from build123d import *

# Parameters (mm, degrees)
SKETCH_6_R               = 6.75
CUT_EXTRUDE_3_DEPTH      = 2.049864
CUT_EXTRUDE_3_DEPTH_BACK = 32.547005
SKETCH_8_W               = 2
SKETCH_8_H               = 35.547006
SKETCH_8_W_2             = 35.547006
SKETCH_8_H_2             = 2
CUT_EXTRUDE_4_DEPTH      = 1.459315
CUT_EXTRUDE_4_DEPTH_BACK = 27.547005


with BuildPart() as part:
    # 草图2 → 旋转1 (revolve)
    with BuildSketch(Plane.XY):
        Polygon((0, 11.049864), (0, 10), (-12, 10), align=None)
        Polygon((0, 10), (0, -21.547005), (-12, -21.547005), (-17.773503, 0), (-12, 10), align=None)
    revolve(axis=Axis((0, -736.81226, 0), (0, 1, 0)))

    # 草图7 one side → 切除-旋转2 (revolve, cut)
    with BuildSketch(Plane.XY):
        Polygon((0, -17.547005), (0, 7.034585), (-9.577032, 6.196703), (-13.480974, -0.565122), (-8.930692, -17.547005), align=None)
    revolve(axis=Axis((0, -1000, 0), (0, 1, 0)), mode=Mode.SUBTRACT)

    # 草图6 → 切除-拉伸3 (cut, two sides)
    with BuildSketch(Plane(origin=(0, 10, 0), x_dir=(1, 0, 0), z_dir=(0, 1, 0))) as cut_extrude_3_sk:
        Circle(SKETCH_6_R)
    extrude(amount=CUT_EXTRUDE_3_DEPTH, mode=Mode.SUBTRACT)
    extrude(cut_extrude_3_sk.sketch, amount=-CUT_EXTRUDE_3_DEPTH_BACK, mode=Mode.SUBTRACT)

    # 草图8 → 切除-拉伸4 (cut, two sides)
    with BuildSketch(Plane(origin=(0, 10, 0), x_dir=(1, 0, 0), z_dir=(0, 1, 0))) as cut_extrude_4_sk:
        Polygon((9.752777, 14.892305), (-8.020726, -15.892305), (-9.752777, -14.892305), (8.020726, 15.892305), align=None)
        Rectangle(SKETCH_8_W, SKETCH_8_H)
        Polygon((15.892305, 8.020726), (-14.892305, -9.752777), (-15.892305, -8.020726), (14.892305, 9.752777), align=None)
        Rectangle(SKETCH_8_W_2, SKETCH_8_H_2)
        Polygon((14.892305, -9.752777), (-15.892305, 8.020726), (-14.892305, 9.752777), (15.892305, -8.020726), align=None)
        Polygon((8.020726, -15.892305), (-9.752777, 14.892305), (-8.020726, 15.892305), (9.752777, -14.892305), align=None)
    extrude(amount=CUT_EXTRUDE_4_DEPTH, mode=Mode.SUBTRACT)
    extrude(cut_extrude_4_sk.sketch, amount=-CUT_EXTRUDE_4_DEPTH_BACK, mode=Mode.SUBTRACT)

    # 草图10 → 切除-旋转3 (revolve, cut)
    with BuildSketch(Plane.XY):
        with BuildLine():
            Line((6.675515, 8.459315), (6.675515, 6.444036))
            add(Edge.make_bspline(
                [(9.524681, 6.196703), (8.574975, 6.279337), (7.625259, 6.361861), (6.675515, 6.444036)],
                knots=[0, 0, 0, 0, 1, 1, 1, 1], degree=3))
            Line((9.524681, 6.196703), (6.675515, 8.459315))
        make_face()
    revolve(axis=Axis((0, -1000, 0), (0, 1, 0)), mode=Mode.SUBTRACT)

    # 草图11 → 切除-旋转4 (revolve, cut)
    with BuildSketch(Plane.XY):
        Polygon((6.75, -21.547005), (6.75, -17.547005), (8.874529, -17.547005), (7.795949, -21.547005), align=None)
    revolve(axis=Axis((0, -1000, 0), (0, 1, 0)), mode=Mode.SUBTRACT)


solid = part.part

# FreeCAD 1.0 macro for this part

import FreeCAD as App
import Part
import Sketcher
Q = App.Units.Quantity


def add_polygon(sketch, points):
    """Adds a closed chain of lines whose ends are joined by coincident constraints."""
    first, n = sketch.GeometryCount, len(points)
    for a, b in zip(points, points[1:] + points[:1]):
        sketch.addGeometry(Part.LineSegment(App.Vector(*a, 0), App.Vector(*b, 0)), False)
    for i in range(n):
        sketch.addConstraint(Sketcher.Constraint("Coincident", first + i, 2, first + (i + 1) % n, 1))

doc = App.newDocument("Part")
params = doc.addObject("Spreadsheet::Sheet", "Params")
for row, (alias, value) in enumerate([
    ("sketch1_width", "12 mm"),
    ("revolution_angle", "360 deg"),
    ("groove_angle", "360 deg"),
    ("sketch3_diameter", "13.5 mm"),
    ("sketch4_width", "2 mm"),
    ("sketch4_length", "2 mm"),
    ("pocket2_length", "1.459315 mm"),
    ("pocket2_length2", "27.547005 mm"),
    ("groove2_angle", "360 deg"),
    ("sketch6_height", "4 mm"),
    ("groove3_angle", "360 deg"),
], start=1):
    params.set(f"A{row}", alias)
    params.set(f"B{row}", "=" + value)
    params.setAlias(f"B{row}", alias)

body = doc.addObject("PartDesign::Body", "Body")

# Sketch on XY plane
sketch1 = body.newObject("Sketcher::SketchObject", "Sketch")
sketch1.AttachmentSupport = (doc.getObject("XY_Plane"), [""])
sketch1.MapMode = "FlatFace"
add_polygon(sketch1, [(0, -22), (0, 11), (-12, 10), (-18, 0), (-12, -22)])  # lines 0-4
sketch1.addConstraint(Sketcher.Constraint("Vertical", 0))
sketch1.addConstraint(Sketcher.Constraint("Horizontal", 4))
sketch1.addConstraint(Sketcher.Constraint("PointOnObject", 0, 2, -2))
sketch1.addConstraint(Sketcher.Constraint("PointOnObject", 2, 2, -1))
sketch1.addConstraint(Sketcher.Constraint("Vertical", 1, 2, 3, 2))
sketch1.addConstraint(Sketcher.Constraint("DistanceX", 4, 1, 4, 2, Q("12 mm")))
sketch1.addConstraint(Sketcher.Constraint("Angle", 1, Q("-175 deg")))
sketch1.addConstraint(Sketcher.Constraint("Angle", 2, Q("-120.000001 deg")))
sketch1.addConstraint(Sketcher.Constraint("Angle", 3, Q("-74.999999 deg")))
sketch1.addConstraint(Sketcher.Constraint("DistanceY", -1, 1, 1, 2, Q("10 mm")))
sketch1.setExpression("Constraints[10]", "Params.sketch1_width")
revolution = body.newObject("PartDesign::Revolution", "Revolution")
revolution.Profile = sketch1
revolution.ReferenceAxis = (sketch1, ["V_Axis"])
revolution.setExpression("Angle", "Params.revolution_angle")

# Sketch on XY plane
sketch2 = body.newObject("Sketcher::SketchObject", "Sketch001")
sketch2.AttachmentSupport = (doc.getObject("XY_Plane"), [""])
sketch2.MapMode = "FlatFace"
add_polygon(sketch2, [(0, -18), (0, 7), (-10, 6), (-13, -1), (-9, -18)])  # lines 0-4
sketch2.addConstraint(Sketcher.Constraint("Vertical", 0))
sketch2.addConstraint(Sketcher.Constraint("Horizontal", 4))
sketch2.addConstraint(Sketcher.Constraint("PointOnObject", 0, 2, -2))
sketch2.addConstraint(Sketcher.Constraint("Angle", 1, Q("-174.999998 deg")))
sketch2.addConstraint(Sketcher.Constraint("Angle", 2, Q("-120.000003 deg")))
sketch2.addConstraint(Sketcher.Constraint("Angle", 3, Q("-74.999999 deg")))
sketch2.addConstraint(Sketcher.Constraint("DistanceY", 0, 1, 0, 2, Q("24.58159 mm")))
sketch2.addConstraint(Sketcher.Constraint("Distance", 3, Q("17.580939 mm")))
sketch2.addConstraint(Sketcher.Constraint("DistanceX", 4, 1, 4, 2, Q("8.930692 mm")))
sketch2.addConstraint(Sketcher.Constraint("DistanceY", -1, 1, 0, 2, Q("7.034585 mm")))
groove = body.newObject("PartDesign::Groove", "Groove")
groove.Profile = sketch2
groove.ReferenceAxis = (sketch2, ["V_Axis"])
groove.setExpression("Angle", "Params.groove_angle")

# Sketch on XZ plane
sketch3 = body.newObject("Sketcher::SketchObject", "Sketch002")
sketch3.AttachmentSupport = (doc.getObject("XZ_Plane"), [""])
sketch3.MapMode = "FlatFace"
sketch3.AttachmentOffset = App.Placement(App.Vector(0, 0, -10), App.Rotation())
sketch3.addGeometry(Part.Circle(App.Vector(0, 0, 0), App.Vector(0, 0, 1), 7), False)
sketch3.addConstraint(Sketcher.Constraint("Coincident", 0, 3, -1, 1))
sketch3.addConstraint(Sketcher.Constraint("Diameter", 0, Q("13.5 mm")))
sketch3.setExpression("Constraints[1]", "Params.sketch3_diameter")
pocket1 = body.newObject("PartDesign::Pocket", "Pocket")
pocket1.Profile = sketch3
pocket1.Type = "ThroughAll"
pocket1.Midplane = True

# Sketch on XZ plane
sketch4 = body.newObject("Sketcher::SketchObject", "Sketch003")
sketch4.AttachmentSupport = (doc.getObject("XZ_Plane"), [""])
sketch4.MapMode = "FlatFace"
sketch4.AttachmentOffset = App.Placement(App.Vector(0, 0, -10), App.Rotation())
add_polygon(sketch4, [(1, -3.7), (1, -17.8), (-1, -17.8), (-1, -3.7), (-8, -15.9), (-9.8, -14.9), (-2.7, -2.7), (-14.9, -9.8), (-15.9, -8), (-3.7, -1), (-17.8, -1), (-17.8, 1), (-3.7, 1), (-15.9, 8), (-14.9, 9.8), (-2.7, 2.7), (-9.8, 14.9), (-8, 15.9), (-1, 3.7), (-1, 17.8), (1, 17.8), (1, 3.7), (8, 15.9), (9.8, 14.9), (2.7, 2.7), (14.9, 9.8), (15.9, 8), (3.7, 1), (17.8, 1), (17.8, -1), (3.7, -1), (15.9, -8), (14.9, -9.8), (2.7, -2.7), (9.8, -14.9), (8, -15.9)])  # lines 0-35
sketch4.addConstraint(Sketcher.Constraint("Vertical", 0))
sketch4.addConstraint(Sketcher.Constraint("Horizontal", 1))
sketch4.addConstraint(Sketcher.Constraint("Vertical", 2))
sketch4.addConstraint(Sketcher.Constraint("Horizontal", 9))
sketch4.addConstraint(Sketcher.Constraint("Vertical", 10))
sketch4.addConstraint(Sketcher.Constraint("Horizontal", 11))
sketch4.addConstraint(Sketcher.Constraint("Vertical", 18))
sketch4.addConstraint(Sketcher.Constraint("Horizontal", 19))
sketch4.addConstraint(Sketcher.Constraint("Vertical", 20))
sketch4.addConstraint(Sketcher.Constraint("Horizontal", 27))
sketch4.addConstraint(Sketcher.Constraint("Vertical", 28))
sketch4.addConstraint(Sketcher.Constraint("Horizontal", 29))
sketch4.addConstraint(Sketcher.Constraint("Symmetric", 0, 2, 18, 2, -1, 1))
sketch4.addConstraint(Sketcher.Constraint("Symmetric", 2, 2, 20, 2, -1, 1))
sketch4.addConstraint(Sketcher.Constraint("Symmetric", 3, 2, 21, 2, -1, 1))
sketch4.addConstraint(Sketcher.Constraint("Symmetric", 4, 2, 22, 2, -1, 1))
sketch4.addConstraint(Sketcher.Constraint("Symmetric", 5, 2, 23, 2, -1, 1))
sketch4.addConstraint(Sketcher.Constraint("Symmetric", 6, 2, 24, 2, -1, 1))
sketch4.addConstraint(Sketcher.Constraint("Symmetric", 7, 2, 25, 2, -1, 1))
sketch4.addConstraint(Sketcher.Constraint("Symmetric", 8, 2, 26, 2, -1, 1))
sketch4.addConstraint(Sketcher.Constraint("Symmetric", 10, 2, 28, 2, -1, 1))
sketch4.addConstraint(Sketcher.Constraint("Symmetric", 12, 2, 30, 2, -1, 1))
sketch4.addConstraint(Sketcher.Constraint("Symmetric", 13, 2, 31, 2, -1, 1))
sketch4.addConstraint(Sketcher.Constraint("Symmetric", 14, 2, 32, 2, -1, 1))
sketch4.addConstraint(Sketcher.Constraint("Symmetric", 15, 2, 33, 2, -1, 1))
sketch4.addConstraint(Sketcher.Constraint("Symmetric", 16, 2, 34, 2, -1, 1))
sketch4.addConstraint(Sketcher.Constraint("Symmetric", 17, 2, 20, 2, -2))
sketch4.addConstraint(Sketcher.Constraint("Symmetric", 16, 2, 21, 2, -2))
sketch4.addConstraint(Sketcher.Constraint("Symmetric", 15, 2, 22, 2, -2))
sketch4.addConstraint(Sketcher.Constraint("Symmetric", 14, 2, 23, 2, -2))
sketch4.addConstraint(Sketcher.Constraint("Symmetric", 13, 2, 24, 2, -2))
sketch4.addConstraint(Sketcher.Constraint("Symmetric", 12, 2, 25, 2, -2))
sketch4.addConstraint(Sketcher.Constraint("Symmetric", 11, 2, 26, 2, -2))
sketch4.addConstraint(Sketcher.Constraint("Perpendicular", 3, 4))
sketch4.addConstraint(Sketcher.Constraint("Perpendicular", 4, 5))
sketch4.addConstraint(Sketcher.Constraint("Perpendicular", 6, 7))
sketch4.addConstraint(Sketcher.Constraint("Perpendicular", 7, 8))
sketch4.addConstraint(Sketcher.Constraint("Perpendicular", 5, 12))
sketch4.addConstraint(Sketcher.Constraint("Perpendicular", 23, 30))
sketch4.addConstraint(Sketcher.Constraint("Perpendicular", 34, 35))
sketch4.addConstraint(Sketcher.Constraint("Equal", 29, 0))
sketch4.addConstraint(Sketcher.Constraint("Equal", 19, 10))
sketch4.addConstraint(Sketcher.Constraint("Equal", 3, 5))
sketch4.addConstraint(Sketcher.Constraint("Equal", 5, 6))
sketch4.addConstraint(Sketcher.Constraint("Equal", 4, 7))
sketch4.addConstraint(Sketcher.Constraint("Equal", 6, 8))
sketch4.addConstraint(Sketcher.Constraint("DistanceX", 1, 2, 1, 1, Q("2 mm")))
sketch4.addConstraint(Sketcher.Constraint("Angle", 3, Q("-120 deg")))
sketch4.addConstraint(Sketcher.Constraint("Distance", 4, Q("2 mm")))
sketch4.addConstraint(Sketcher.Constraint("DistanceY", 1, 2, 3, 2, Q("1.881198 mm")))
sketch4.addConstraint(Sketcher.Constraint("Distance", 3, Q("14.041452 mm")))
sketch4.setExpression("Constraints[82]", "Params.sketch4_width")
sketch4.setExpression("Constraints[84]", "Params.sketch4_length")
pocket2 = body.newObject("PartDesign::Pocket", "Pocket001")
pocket2.Profile = sketch4
pocket2.Type = "TwoLengths"
pocket2.setExpression("Length", "Params.pocket2_length")
pocket2.setExpression("Length2", "Params.pocket2_length2")

# Sketch on XY plane
sketch5 = body.newObject("Sketcher::SketchObject", "Sketch004")
sketch5.AttachmentSupport = (doc.getObject("XY_Plane"), [""])
sketch5.MapMode = "FlatFace"
sketch5.addGeometry(Part.LineSegment(App.Vector(6.675515, 8.459315, 0), App.Vector(6.675515, 6.444036, 0)), False)
sketch5.addGeometry(Part.BSplineCurve([App.Vector(9.524681, 6.196703, 0), App.Vector(8.574975, 6.279337, 0), App.Vector(7.625259, 6.361861, 0), App.Vector(6.675515, 6.444036, 0)], [4, 4], [0, 1], False, 3, [1, 1, 1, 1], False), False)
sketch5.addGeometry(Part.LineSegment(App.Vector(9.524681, 6.196703, 0), App.Vector(6.675515, 8.459315, 0)), False)
sketch5.addConstraint(Sketcher.Constraint("Block", 1))
sketch5.addConstraint(Sketcher.Constraint("Coincident", 0, 2, 1, 2))
sketch5.addConstraint(Sketcher.Constraint("Coincident", 1, 1, 2, 1))
sketch5.addConstraint(Sketcher.Constraint("Coincident", 2, 2, 0, 1))
sketch5.addConstraint(Sketcher.Constraint("Vertical", 0))
sketch5.addConstraint(Sketcher.Constraint("DistanceY", 0, 2, 0, 1, Q("2.015279 mm")))
groove2 = body.newObject("PartDesign::Groove", "Groove001")
groove2.Profile = sketch5
groove2.ReferenceAxis = (sketch5, ["V_Axis"])
groove2.setExpression("Angle", "Params.groove2_angle")

# Sketch on XY plane
sketch6 = body.newObject("Sketcher::SketchObject", "Sketch005")
sketch6.AttachmentSupport = (doc.getObject("XY_Plane"), [""])
sketch6.MapMode = "FlatFace"
add_polygon(sketch6, [(6.8, -17.5), (6.8, -21.5), (7.8, -21.5), (8.9, -17.5)])  # lines 0-3
sketch6.addConstraint(Sketcher.Constraint("Vertical", 0))
sketch6.addConstraint(Sketcher.Constraint("Horizontal", 1))
sketch6.addConstraint(Sketcher.Constraint("Horizontal", 3))
sketch6.addConstraint(Sketcher.Constraint("DistanceY", 0, 2, 0, 1, Q("4 mm")))
sketch6.addConstraint(Sketcher.Constraint("DistanceX", -1, 1, 0, 2, Q("6.75 mm")))
sketch6.addConstraint(Sketcher.Constraint("DistanceX", 1, 1, 1, 2, Q("1.045949 mm")))
sketch6.addConstraint(Sketcher.Constraint("DistanceX", 3, 2, 3, 1, Q("2.124529 mm")))
sketch6.addConstraint(Sketcher.Constraint("DistanceY", 0, 2, -1, 1, Q("21.547005 mm")))
sketch6.setExpression("Constraints[7]", "Params.sketch6_height")
groove3 = body.newObject("PartDesign::Groove", "Groove002")
groove3.Profile = sketch6
groove3.ReferenceAxis = (sketch6, ["V_Axis"])
groove3.setExpression("Angle", "Params.groove3_angle")

doc.recompute()
